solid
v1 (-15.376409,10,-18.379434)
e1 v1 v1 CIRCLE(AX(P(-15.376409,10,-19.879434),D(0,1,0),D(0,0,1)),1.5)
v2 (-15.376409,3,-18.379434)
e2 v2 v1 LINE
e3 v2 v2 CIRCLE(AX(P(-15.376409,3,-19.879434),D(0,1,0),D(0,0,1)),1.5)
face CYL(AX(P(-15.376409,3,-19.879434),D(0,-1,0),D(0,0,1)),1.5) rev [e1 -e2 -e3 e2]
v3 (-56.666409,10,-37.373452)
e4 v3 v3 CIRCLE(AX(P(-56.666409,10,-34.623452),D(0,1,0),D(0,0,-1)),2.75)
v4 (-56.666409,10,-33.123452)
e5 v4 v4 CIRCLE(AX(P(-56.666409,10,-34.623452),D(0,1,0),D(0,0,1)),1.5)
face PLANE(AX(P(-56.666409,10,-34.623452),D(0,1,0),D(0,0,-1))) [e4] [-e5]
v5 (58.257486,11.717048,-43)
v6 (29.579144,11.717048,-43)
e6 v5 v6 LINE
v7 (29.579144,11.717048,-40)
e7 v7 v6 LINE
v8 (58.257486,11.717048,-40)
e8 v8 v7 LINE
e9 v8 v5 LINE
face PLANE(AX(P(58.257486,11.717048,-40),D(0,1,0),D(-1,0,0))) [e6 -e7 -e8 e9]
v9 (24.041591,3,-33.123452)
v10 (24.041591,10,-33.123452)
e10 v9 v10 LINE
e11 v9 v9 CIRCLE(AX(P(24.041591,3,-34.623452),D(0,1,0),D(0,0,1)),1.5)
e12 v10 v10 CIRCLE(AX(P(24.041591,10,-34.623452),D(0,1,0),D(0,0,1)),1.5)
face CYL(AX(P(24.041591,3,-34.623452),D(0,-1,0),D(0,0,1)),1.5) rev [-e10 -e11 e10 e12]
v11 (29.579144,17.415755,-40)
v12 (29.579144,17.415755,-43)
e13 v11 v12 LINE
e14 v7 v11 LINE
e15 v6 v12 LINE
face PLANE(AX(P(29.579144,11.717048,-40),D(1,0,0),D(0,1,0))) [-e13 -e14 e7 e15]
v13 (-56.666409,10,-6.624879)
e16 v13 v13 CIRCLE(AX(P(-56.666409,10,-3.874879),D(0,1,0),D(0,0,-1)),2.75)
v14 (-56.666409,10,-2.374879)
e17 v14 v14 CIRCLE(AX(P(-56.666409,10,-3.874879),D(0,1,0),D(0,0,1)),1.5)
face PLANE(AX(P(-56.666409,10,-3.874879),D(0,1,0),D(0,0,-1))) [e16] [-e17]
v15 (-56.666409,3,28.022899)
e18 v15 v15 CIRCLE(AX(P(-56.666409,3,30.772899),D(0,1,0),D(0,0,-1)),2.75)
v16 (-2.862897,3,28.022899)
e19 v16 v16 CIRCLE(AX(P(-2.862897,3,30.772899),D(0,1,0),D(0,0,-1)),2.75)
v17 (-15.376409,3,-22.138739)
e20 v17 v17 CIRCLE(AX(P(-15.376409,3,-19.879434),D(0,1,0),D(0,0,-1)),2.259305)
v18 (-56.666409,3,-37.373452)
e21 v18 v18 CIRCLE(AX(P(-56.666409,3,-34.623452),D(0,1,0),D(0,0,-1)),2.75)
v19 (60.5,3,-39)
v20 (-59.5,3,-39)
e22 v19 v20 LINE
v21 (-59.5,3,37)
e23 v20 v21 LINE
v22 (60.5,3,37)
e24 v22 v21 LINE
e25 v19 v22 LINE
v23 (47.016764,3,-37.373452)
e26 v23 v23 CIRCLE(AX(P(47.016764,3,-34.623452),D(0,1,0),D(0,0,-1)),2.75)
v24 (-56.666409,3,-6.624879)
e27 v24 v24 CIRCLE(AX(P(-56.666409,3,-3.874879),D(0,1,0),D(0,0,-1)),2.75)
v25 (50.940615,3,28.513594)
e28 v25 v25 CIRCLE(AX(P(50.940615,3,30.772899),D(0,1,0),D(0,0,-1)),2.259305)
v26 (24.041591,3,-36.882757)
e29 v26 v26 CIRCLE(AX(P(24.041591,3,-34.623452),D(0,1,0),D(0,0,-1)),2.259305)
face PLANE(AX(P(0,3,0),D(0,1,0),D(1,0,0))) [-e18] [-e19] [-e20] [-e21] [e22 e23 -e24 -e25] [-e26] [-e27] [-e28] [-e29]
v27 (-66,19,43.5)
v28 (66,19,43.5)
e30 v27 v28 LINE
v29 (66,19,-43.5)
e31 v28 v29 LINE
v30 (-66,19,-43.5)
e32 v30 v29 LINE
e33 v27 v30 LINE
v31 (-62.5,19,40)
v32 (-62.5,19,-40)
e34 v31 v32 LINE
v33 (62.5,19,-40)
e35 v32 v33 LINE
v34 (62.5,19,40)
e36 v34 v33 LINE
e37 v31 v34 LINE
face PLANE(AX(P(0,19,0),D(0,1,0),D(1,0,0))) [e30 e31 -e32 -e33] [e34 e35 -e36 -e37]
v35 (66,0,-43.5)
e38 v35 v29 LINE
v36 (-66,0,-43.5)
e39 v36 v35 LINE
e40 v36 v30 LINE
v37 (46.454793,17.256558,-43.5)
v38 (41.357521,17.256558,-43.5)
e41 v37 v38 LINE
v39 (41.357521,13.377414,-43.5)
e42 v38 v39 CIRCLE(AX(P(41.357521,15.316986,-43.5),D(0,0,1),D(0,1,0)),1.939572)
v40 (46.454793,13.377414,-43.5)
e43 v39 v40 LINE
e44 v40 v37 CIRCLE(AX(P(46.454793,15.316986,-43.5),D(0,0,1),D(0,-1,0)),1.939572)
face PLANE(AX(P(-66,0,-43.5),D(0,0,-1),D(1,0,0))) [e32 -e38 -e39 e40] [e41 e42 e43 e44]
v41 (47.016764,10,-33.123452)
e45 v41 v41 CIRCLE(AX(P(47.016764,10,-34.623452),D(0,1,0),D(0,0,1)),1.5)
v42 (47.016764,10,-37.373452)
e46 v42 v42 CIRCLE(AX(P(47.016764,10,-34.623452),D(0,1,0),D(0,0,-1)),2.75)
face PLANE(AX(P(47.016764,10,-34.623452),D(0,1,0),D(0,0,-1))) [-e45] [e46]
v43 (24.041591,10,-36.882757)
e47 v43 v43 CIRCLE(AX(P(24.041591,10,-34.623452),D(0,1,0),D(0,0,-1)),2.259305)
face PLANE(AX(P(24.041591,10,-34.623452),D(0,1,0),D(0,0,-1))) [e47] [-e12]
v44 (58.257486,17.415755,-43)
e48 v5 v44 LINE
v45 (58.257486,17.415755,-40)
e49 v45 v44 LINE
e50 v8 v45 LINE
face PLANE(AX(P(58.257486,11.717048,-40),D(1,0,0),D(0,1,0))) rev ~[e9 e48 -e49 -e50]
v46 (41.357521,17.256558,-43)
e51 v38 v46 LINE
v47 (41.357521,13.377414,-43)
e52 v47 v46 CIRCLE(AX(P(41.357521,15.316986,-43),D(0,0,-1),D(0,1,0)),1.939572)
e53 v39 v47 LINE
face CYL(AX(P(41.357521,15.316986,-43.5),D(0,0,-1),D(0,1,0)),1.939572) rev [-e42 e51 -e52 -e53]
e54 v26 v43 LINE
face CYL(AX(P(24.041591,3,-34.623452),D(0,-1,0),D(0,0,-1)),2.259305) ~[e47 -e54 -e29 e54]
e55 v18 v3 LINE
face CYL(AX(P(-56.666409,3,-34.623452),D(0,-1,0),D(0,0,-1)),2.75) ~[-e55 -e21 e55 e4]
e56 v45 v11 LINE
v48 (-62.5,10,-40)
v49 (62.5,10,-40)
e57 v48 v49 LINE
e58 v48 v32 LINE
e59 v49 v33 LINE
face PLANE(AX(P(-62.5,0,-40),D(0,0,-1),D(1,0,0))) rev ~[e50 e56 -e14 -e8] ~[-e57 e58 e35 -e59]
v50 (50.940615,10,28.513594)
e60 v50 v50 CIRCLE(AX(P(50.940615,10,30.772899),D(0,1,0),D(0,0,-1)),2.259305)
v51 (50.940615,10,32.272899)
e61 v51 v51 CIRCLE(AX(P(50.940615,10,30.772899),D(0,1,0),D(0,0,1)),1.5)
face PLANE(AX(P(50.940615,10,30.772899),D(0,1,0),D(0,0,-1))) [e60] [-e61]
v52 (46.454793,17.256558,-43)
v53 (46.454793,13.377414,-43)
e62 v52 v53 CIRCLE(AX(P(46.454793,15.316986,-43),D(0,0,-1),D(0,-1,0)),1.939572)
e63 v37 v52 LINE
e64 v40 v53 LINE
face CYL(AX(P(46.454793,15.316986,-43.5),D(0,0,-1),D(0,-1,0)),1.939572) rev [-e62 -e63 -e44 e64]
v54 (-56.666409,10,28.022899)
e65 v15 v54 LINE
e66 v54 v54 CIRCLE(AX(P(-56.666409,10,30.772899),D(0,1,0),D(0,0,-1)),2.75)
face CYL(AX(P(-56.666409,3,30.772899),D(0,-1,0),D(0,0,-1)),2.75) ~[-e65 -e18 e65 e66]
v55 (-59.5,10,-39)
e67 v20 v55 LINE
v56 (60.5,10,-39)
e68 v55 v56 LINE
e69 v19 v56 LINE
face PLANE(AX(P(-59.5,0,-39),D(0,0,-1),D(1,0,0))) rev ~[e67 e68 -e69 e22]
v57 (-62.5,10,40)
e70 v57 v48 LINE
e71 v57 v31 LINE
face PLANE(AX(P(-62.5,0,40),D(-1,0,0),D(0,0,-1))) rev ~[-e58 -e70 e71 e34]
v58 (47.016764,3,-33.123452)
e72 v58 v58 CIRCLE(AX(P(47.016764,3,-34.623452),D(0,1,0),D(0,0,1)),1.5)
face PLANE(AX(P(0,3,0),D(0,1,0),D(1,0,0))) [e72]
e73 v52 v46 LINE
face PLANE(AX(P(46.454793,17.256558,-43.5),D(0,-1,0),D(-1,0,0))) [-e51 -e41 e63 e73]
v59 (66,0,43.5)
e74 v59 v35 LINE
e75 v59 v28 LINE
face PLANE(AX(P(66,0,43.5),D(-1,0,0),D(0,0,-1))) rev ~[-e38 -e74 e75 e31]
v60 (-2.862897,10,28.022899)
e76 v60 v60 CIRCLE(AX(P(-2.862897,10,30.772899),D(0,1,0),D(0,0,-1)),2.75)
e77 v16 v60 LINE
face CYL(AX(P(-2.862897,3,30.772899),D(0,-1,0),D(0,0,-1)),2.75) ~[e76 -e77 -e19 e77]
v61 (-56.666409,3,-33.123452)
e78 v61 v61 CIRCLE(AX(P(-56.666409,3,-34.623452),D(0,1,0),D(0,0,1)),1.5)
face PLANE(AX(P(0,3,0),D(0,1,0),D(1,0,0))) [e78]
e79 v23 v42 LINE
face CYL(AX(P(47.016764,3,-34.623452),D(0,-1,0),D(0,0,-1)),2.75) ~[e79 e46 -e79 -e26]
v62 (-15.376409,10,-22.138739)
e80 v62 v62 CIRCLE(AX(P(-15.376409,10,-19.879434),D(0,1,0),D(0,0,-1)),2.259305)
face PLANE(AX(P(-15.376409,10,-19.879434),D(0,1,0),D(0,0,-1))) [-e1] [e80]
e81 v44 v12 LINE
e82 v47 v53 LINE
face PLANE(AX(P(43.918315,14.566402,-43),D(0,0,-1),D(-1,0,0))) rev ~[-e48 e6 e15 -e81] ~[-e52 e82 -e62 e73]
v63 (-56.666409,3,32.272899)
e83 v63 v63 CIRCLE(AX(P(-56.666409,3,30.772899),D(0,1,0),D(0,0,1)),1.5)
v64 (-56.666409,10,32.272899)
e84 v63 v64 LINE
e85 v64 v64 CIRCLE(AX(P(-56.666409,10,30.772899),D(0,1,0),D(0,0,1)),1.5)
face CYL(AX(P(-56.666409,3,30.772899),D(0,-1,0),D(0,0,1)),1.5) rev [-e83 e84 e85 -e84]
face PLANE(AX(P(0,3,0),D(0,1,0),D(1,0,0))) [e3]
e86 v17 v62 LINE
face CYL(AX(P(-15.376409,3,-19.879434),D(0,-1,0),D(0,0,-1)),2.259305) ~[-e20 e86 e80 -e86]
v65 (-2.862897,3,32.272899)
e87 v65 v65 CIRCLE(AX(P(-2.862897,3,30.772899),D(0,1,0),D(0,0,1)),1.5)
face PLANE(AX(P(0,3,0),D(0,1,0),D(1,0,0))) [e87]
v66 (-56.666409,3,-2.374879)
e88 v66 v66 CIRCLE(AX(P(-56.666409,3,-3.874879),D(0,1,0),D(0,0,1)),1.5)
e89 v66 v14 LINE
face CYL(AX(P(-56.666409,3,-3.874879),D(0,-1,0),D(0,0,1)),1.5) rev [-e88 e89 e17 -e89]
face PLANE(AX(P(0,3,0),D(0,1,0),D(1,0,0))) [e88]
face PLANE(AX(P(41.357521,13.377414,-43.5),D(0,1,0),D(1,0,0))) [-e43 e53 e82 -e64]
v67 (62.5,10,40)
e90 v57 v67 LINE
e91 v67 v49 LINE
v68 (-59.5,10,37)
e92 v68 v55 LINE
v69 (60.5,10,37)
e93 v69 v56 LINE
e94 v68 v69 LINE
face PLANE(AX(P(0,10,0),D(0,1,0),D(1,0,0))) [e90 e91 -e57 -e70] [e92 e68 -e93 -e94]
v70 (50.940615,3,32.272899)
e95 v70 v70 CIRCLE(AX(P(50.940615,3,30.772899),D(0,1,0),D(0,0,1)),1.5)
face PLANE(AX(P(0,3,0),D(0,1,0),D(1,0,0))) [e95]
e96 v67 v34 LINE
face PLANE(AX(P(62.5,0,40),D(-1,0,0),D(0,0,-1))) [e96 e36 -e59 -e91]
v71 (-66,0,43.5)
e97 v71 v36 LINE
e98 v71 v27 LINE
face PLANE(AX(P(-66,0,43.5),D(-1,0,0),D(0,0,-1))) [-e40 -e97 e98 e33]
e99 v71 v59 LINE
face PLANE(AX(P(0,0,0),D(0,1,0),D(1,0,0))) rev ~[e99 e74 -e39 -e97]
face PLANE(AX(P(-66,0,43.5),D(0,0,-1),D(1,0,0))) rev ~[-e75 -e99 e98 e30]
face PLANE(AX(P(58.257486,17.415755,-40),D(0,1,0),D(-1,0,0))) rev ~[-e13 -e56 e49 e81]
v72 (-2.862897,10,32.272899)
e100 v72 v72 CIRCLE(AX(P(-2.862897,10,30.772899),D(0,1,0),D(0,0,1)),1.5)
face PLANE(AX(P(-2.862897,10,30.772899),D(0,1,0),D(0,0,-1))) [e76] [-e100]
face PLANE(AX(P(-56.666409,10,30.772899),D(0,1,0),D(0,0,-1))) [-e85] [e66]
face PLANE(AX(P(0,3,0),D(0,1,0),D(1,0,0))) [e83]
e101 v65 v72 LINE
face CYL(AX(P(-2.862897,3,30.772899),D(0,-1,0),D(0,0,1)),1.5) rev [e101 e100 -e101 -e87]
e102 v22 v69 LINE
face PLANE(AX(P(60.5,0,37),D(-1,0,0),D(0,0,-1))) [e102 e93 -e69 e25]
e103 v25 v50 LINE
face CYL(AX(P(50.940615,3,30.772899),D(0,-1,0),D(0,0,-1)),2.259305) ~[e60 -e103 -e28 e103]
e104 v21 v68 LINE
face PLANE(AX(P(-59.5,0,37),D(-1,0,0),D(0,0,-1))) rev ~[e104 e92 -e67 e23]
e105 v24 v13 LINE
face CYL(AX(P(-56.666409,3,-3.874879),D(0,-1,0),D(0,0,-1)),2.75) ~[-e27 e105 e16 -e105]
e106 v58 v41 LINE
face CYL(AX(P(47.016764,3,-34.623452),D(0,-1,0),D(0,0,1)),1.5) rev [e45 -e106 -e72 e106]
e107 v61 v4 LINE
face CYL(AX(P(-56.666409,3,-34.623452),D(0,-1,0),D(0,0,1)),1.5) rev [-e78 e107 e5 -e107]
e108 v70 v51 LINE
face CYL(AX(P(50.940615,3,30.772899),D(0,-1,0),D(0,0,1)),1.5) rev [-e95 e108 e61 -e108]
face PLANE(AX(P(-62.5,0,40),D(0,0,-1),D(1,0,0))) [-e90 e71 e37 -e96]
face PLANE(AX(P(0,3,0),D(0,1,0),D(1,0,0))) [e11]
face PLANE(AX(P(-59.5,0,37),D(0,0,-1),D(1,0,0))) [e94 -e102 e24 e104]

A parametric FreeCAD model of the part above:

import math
import FreeCAD as App
import Part
import Sketcher

V = App.Vector

doc = App.newDocument("Part")
body = doc.addObject("PartDesign::Body", "Body")

sketch1 = doc.addObject("Sketcher::SketchObject", "Sketch")
body.addObject(sketch1)
sketch1.AttachmentSupport = (doc.XZ_Plane, [""])
sketch1.MapMode = "FlatFace"
sketch1.addGeometry([
    Part.LineSegment(V(-62.5, -40, 0), V(-62.5, 40, 0)),
    Part.LineSegment(V(-62.5, 40, 0), V(62.5, 40, 0)),
    Part.LineSegment(V(62.5, 40, 0), V(62.5, -40, 0)),
    Part.LineSegment(V(62.5, -40, 0), V(-62.5, -40, 0)),
], False)
sketch1.addConstraint([
    Sketcher.Constraint("Coincident", 0, 2, 1, 1),
    Sketcher.Constraint("Coincident", 1, 2, 2, 1),
    Sketcher.Constraint("Coincident", 2, 2, 3, 1),
    Sketcher.Constraint("Coincident", 3, 2, 0, 1),
    Sketcher.Constraint("Vertical", 0),
    Sketcher.Constraint("Horizontal", 1),
    Sketcher.Constraint("Vertical", 2),
    Sketcher.Constraint("Horizontal", 3),
    Sketcher.Constraint("Symmetric", 0, 2, 2, 2, -1, 1),
    Sketcher.Constraint("DistanceX", 1, 1, 1, 2, 125.0),
    Sketcher.Constraint("DistanceY", 0, 1, 0, 2, 80.0),
])
pad1 = doc.addObject("PartDesign::Pad", "Pad")
body.addObject(pad1)
pad1.Profile = sketch1
pad1.Length = 3
pad1.Reversed = True

sketch2 = doc.addObject("Sketcher::SketchObject", "Sketch001")
body.addObject(sketch2)
sketch2.AttachmentSupport = (doc.XZ_Plane, [""])
sketch2.MapMode = "FlatFace"
sketch2.addGeometry([
    Part.LineSegment(V(-66, -43.5, 0), V(-66, 43.5, 0)),
    Part.LineSegment(V(-66, 43.5, 0), V(66, 43.5, 0)),
    Part.LineSegment(V(66, 43.5, 0), V(66, -43.5, 0)),
    Part.LineSegment(V(66, -43.5, 0), V(-66, -43.5, 0)),
    Part.LineSegment(V(62.5, 40, 0), V(-62.5, 40, 0)),
    Part.LineSegment(V(-62.5, 40, 0), V(-62.5, -40, 0)),
    Part.LineSegment(V(-62.5, -40, 0), V(62.5, -40, 0)),
    Part.LineSegment(V(62.5, -40, 0), V(62.5, 40, 0)),
], False)
sketch2.addConstraint([
    Sketcher.Constraint("Coincident", 0, 2, 1, 1),
    Sketcher.Constraint("Coincident", 1, 2, 2, 1),
    Sketcher.Constraint("Coincident", 2, 2, 3, 1),
    Sketcher.Constraint("Coincident", 3, 2, 0, 1),
    Sketcher.Constraint("Coincident", 4, 2, 5, 1),
    Sketcher.Constraint("Coincident", 5, 2, 6, 1),
    Sketcher.Constraint("Coincident", 6, 2, 7, 1),
    Sketcher.Constraint("Coincident", 7, 2, 4, 1),
    Sketcher.Constraint("Vertical", 0),
    Sketcher.Constraint("Horizontal", 1),
    Sketcher.Constraint("Vertical", 2),
    Sketcher.Constraint("Horizontal", 3),
    Sketcher.Constraint("Horizontal", 4),
    Sketcher.Constraint("Vertical", 5),
    Sketcher.Constraint("Horizontal", 6),
    Sketcher.Constraint("Vertical", 7),
    Sketcher.Constraint("Symmetric", 0, 2, 2, 2, -1, 1),
    Sketcher.Constraint("Symmetric", 4, 2, 6, 2, -1, 1),
    Sketcher.Constraint("DistanceX", 1, 1, 1, 2, 132.0),
    Sketcher.Constraint("DistanceX", 4, 2, 4, 1, 125.0),
    Sketcher.Constraint("DistanceY", 0, 1, 0, 2, 87.0),
    Sketcher.Constraint("DistanceY", 5, 2, 5, 1, 80.0),
])
pad2 = doc.addObject("PartDesign::Pad", "Pad001")
body.addObject(pad2)
pad2.Profile = sketch2
pad2.Length = 19
pad2.Reversed = True

sketch3 = doc.addObject("Sketcher::SketchObject", "Sketch002")
body.addObject(sketch3)
sketch3.AttachmentSupport = (doc.XZ_Plane, [""])
sketch3.MapMode = "FlatFace"
sketch3.addGeometry([
    Part.LineSegment(V(-62.5, -40, 0), V(-62.5, 40, 0)),
    Part.LineSegment(V(-62.5, 40, 0), V(62.5, 40, 0)),
    Part.LineSegment(V(62.5, 40, 0), V(62.5, -40, 0)),
    Part.LineSegment(V(62.5, -40, 0), V(-62.5, -40, 0)),
    Part.LineSegment(V(60.5, 37, 0), V(-59.5, 37, 0)),
    Part.LineSegment(V(-59.5, 37, 0), V(-59.5, -39, 0)),
    Part.LineSegment(V(-59.5, -39, 0), V(60.5, -39, 0)),
    Part.LineSegment(V(60.5, -39, 0), V(60.5, 37, 0)),
], False)
sketch3.addConstraint([
    Sketcher.Constraint("Coincident", 0, 2, 1, 1),
    Sketcher.Constraint("Coincident", 1, 2, 2, 1),
    Sketcher.Constraint("Coincident", 2, 2, 3, 1),
    Sketcher.Constraint("Coincident", 3, 2, 0, 1),
    Sketcher.Constraint("Coincident", 4, 2, 5, 1),
    Sketcher.Constraint("Coincident", 5, 2, 6, 1),
    Sketcher.Constraint("Coincident", 6, 2, 7, 1),
    Sketcher.Constraint("Coincident", 7, 2, 4, 1),
    Sketcher.Constraint("Vertical", 0),
    Sketcher.Constraint("Horizontal", 1),
    Sketcher.Constraint("Vertical", 2),
    Sketcher.Constraint("Horizontal", 3),
    Sketcher.Constraint("Horizontal", 4),
    Sketcher.Constraint("Vertical", 5),
    Sketcher.Constraint("Horizontal", 6),
    Sketcher.Constraint("Vertical", 7),
    Sketcher.Constraint("Symmetric", 0, 2, 2, 2, -1, 1),
    Sketcher.Constraint("DistanceX", 1, 1, 1, 2, 125.0),
    Sketcher.Constraint("DistanceX", 4, 2, 4, 1, 120.0),
    Sketcher.Constraint("DistanceY", 0, 1, 0, 2, 80.0),
    Sketcher.Constraint("DistanceY", 5, 2, 5, 1, 76.0),
    Sketcher.Constraint("DistanceY", -1, 1, 4, 2, 37.0),
    Sketcher.Constraint("DistanceX", 0, 2, 4, 2, 3.0),
])
pad3 = doc.addObject("PartDesign::Pad", "Pad002")
body.addObject(pad3)
pad3.Profile = sketch3
pad3.Length = 10
pad3.Reversed = True

sketch4 = doc.addObject("Sketcher::SketchObject", "Sketch003")
body.addObject(sketch4)
sketch4.AttachmentSupport = (doc.XY_Plane, [""])
sketch4.MapMode = "FlatFace"
sketch4.AttachmentOffset = App.Placement(V(0, 0, -40), App.Rotation())
sketch4.addGeometry([
    Part.LineSegment(V(58.257486, 17.415755, 0), V(58.257486, 11.717048, 0)),
    Part.LineSegment(V(58.257486, 11.717048, 0), V(29.579144, 11.717048, 0)),
    Part.LineSegment(V(29.579144, 11.717048, 0), V(29.579144, 17.415755, 0)),
    Part.LineSegment(V(29.579144, 17.415755, 0), V(58.257486, 17.415755, 0)),
], False)
sketch4.addConstraint([
    Sketcher.Constraint("Coincident", 0, 2, 1, 1),
    Sketcher.Constraint("Coincident", 1, 2, 2, 1),
    Sketcher.Constraint("Coincident", 2, 2, 3, 1),
    Sketcher.Constraint("Coincident", 3, 2, 0, 1),
    Sketcher.Constraint("Vertical", 0),
    Sketcher.Constraint("Horizontal", 1),
    Sketcher.Constraint("Vertical", 2),
    Sketcher.Constraint("Horizontal", 3),
    Sketcher.Constraint("DistanceX", 1, 2, 1, 1, 28.678342),
    Sketcher.Constraint("DistanceY", 0, 2, 0, 1, 5.698707),
    Sketcher.Constraint("DistanceY", -1, 1, 0, 2, 11.717048),
    Sketcher.Constraint("DistanceX", -1, 1, 0, 2, 58.257486),
])
pocket1 = doc.addObject("PartDesign::Pocket", "Pocket")
body.addObject(pocket1)
pocket1.Profile = sketch4
pocket1.Length = 3

sketch5 = doc.addObject("Sketcher::SketchObject", "Sketch004")
body.addObject(sketch5)
sketch5.AttachmentSupport = (doc.XY_Plane, [""])
sketch5.MapMode = "FlatFace"
sketch5.AttachmentOffset = App.Placement(V(0, 0, -43.5), App.Rotation())
sketch5.addGeometry([
    Part.LineSegment(V(41.357521, 17.256558, 0), V(46.454793, 17.256558, 0)),
    Part.ArcOfCircle(Part.Circle(V(46.454793, 15.316986, 0), V(0, 0, 1), 1.939572), math.radians(-90), math.radians(90)),
    Part.LineSegment(V(46.454793, 13.377414, 0), V(41.357521, 13.377414, 0)),
    Part.ArcOfCircle(Part.Circle(V(41.357521, 15.316986, 0), V(0, 0, 1), 1.939572), math.radians(90), math.radians(270)),
], False)
sketch5.addConstraint([
    Sketcher.Constraint("Tangent", 0, 2, 1, 2),
    Sketcher.Constraint("Tangent", 1, 1, 2, 1),
    Sketcher.Constraint("Tangent", 2, 2, 3, 2),
    Sketcher.Constraint("Tangent", 3, 1, 0, 1),
    Sketcher.Constraint("Horizontal", 0),
    Sketcher.Constraint("Horizontal", 2),
    Sketcher.Constraint("Radius", 1, 1.939572),
    Sketcher.Constraint("DistanceX", 0, 1, 0, 2, 5.097272),
    Sketcher.Constraint("DistanceX", -1, 1, 3, 3, 41.357521),
    Sketcher.Constraint("DistanceY", -1, 1, 1, 3, 15.316986),
])
pocket2 = doc.addObject("PartDesign::Pocket", "Pocket001")
body.addObject(pocket2)
pocket2.Profile = sketch5
pocket2.Length = 3
pocket2.Reversed = True

sketch6 = doc.addObject("Sketcher::SketchObject", "Sketch005")
body.addObject(sketch6)
sketch6.AttachmentSupport = (doc.XZ_Plane, [""])
sketch6.MapMode = "FlatFace"
sketch6.AttachmentOffset = App.Placement(V(0, 0, -3), App.Rotation())
sketch6.addGeometry([
    Part.Circle(V(-56.666409, 30.772899, 0), V(0, 0, 1), 2.75),
    Part.Circle(V(-56.666409, 30.772899, 0), V(0, 0, 1), 1.5),
    Part.Circle(V(-56.666409, -34.623452, 0), V(0, 0, 1), 2.75),
    Part.Circle(V(-56.666409, -34.623452, 0), V(0, 0, 1), 1.5),
    Part.Circle(V(-56.666409, -3.874879, 0), V(0, 0, 1), 2.75),
    Part.Circle(V(-56.666409, -3.874879, 0), V(0, 0, 1), 1.5),
    Part.Circle(V(-15.376409, -19.879434, 0), V(0, 0, 1), 2.259305),
    Part.Circle(V(-15.376409, -19.879434, 0), V(0, 0, 1), 1.5),
    Part.Circle(V(24.041591, -34.623452, 0), V(0, 0, 1), 2.259305),
    Part.Circle(V(24.041591, -34.623452, 0), V(0, 0, 1), 1.5),
    Part.Circle(V(50.940615, 30.772899, 0), V(0, 0, 1), 2.259305),
    Part.Circle(V(50.940615, 30.772899, 0), V(0, 0, 1), 1.5),
    Part.Circle(V(-2.862897, 30.772899, 0), V(0, 0, 1), 2.75),
    Part.Circle(V(-2.862897, 30.772899, 0), V(0, 0, 1), 1.5),
    Part.Circle(V(47.016764, -34.623452, 0), V(0, 0, 1), 2.75),
    Part.Circle(V(47.016764, -34.623452, 0), V(0, 0, 1), 1.5),
], False)
sketch6.addConstraint([
    Sketcher.Constraint("Coincident", 1, 3, 0, 3),
    Sketcher.Constraint("Coincident", 3, 3, 2, 3),
    Sketcher.Constraint("Coincident", 5, 3, 4, 3),
    Sketcher.Constraint("Coincident", 7, 3, 6, 3),
    Sketcher.Constraint("Coincident", 9, 3, 8, 3),
    Sketcher.Constraint("Coincident", 11, 3, 10, 3),
    Sketcher.Constraint("Coincident", 13, 3, 12, 3),
    Sketcher.Constraint("Coincident", 15, 3, 14, 3),
    Sketcher.Constraint("Equal", 0, 2),
    Sketcher.Constraint("Equal", 1, 3),
    Sketcher.Constraint("Equal", 2, 4),
    Sketcher.Constraint("Equal", 3, 5),
    Sketcher.Constraint("Equal", 5, 7),
    Sketcher.Constraint("Equal", 6, 8),
    Sketcher.Constraint("Equal", 7, 9),
    Sketcher.Constraint("Equal", 8, 10),
    Sketcher.Constraint("Equal", 9, 11),
    Sketcher.Constraint("Equal", 4, 12),
    Sketcher.Constraint("Equal", 11, 13),
    Sketcher.Constraint("Equal", 12, 14),
    Sketcher.Constraint("Equal", 13, 15),
    Sketcher.Constraint("Horizontal", 3, 3, 8, 3),
    Sketcher.Constraint("Horizontal", 1, 3, 10, 3),
    Sketcher.Constraint("Horizontal", 11, 3, 12, 3),
    Sketcher.Constraint("Horizontal", 9, 3, 14, 3),
    Sketcher.Constraint("Vertical", 1, 3, 2, 3),
    Sketcher.Constraint("Vertical", 3, 3, 4, 3),
    Sketcher.Constraint("Diameter", 1, 3.0),
    Sketcher.Constraint("Diameter", 0, 5.5),
    Sketcher.Constraint("Diameter", 6, 4.518611),
    Sketcher.Constraint("DistanceX", 2, 3, 6, 3, 41.29),
    Sketcher.Constraint("DistanceX", 6, 3, 8, 3, 39.418),
    Sketcher.Constraint("DistanceY", -1, 1, 0, 3, 30.772899),
    Sketcher.Constraint("DistanceX", 0, 3, -1, 1, 56.666409),
    Sketcher.Constraint("DistanceY", 2, 3, -1, 1, 34.623452),
    Sketcher.Constraint("DistanceY", 4, 3, -1, 1, 3.874879),
    Sketcher.Constraint("DistanceY", 2, 3, 6, 3, 14.744018),
    Sketcher.Constraint("DistanceX", 14, 3, 10, 3, 3.923852),
    Sketcher.Constraint("DistanceX", -1, 1, 10, 3, 50.940615),
    Sketcher.Constraint("DistanceX", 12, 3, -1, 1, 2.862897),
])
pad4 = doc.addObject("PartDesign::Pad", "Pad003")
body.addObject(pad4)
pad4.Profile = sketch6
pad4.Length = 7
pad4.Reversed = True

doc.recompute()
